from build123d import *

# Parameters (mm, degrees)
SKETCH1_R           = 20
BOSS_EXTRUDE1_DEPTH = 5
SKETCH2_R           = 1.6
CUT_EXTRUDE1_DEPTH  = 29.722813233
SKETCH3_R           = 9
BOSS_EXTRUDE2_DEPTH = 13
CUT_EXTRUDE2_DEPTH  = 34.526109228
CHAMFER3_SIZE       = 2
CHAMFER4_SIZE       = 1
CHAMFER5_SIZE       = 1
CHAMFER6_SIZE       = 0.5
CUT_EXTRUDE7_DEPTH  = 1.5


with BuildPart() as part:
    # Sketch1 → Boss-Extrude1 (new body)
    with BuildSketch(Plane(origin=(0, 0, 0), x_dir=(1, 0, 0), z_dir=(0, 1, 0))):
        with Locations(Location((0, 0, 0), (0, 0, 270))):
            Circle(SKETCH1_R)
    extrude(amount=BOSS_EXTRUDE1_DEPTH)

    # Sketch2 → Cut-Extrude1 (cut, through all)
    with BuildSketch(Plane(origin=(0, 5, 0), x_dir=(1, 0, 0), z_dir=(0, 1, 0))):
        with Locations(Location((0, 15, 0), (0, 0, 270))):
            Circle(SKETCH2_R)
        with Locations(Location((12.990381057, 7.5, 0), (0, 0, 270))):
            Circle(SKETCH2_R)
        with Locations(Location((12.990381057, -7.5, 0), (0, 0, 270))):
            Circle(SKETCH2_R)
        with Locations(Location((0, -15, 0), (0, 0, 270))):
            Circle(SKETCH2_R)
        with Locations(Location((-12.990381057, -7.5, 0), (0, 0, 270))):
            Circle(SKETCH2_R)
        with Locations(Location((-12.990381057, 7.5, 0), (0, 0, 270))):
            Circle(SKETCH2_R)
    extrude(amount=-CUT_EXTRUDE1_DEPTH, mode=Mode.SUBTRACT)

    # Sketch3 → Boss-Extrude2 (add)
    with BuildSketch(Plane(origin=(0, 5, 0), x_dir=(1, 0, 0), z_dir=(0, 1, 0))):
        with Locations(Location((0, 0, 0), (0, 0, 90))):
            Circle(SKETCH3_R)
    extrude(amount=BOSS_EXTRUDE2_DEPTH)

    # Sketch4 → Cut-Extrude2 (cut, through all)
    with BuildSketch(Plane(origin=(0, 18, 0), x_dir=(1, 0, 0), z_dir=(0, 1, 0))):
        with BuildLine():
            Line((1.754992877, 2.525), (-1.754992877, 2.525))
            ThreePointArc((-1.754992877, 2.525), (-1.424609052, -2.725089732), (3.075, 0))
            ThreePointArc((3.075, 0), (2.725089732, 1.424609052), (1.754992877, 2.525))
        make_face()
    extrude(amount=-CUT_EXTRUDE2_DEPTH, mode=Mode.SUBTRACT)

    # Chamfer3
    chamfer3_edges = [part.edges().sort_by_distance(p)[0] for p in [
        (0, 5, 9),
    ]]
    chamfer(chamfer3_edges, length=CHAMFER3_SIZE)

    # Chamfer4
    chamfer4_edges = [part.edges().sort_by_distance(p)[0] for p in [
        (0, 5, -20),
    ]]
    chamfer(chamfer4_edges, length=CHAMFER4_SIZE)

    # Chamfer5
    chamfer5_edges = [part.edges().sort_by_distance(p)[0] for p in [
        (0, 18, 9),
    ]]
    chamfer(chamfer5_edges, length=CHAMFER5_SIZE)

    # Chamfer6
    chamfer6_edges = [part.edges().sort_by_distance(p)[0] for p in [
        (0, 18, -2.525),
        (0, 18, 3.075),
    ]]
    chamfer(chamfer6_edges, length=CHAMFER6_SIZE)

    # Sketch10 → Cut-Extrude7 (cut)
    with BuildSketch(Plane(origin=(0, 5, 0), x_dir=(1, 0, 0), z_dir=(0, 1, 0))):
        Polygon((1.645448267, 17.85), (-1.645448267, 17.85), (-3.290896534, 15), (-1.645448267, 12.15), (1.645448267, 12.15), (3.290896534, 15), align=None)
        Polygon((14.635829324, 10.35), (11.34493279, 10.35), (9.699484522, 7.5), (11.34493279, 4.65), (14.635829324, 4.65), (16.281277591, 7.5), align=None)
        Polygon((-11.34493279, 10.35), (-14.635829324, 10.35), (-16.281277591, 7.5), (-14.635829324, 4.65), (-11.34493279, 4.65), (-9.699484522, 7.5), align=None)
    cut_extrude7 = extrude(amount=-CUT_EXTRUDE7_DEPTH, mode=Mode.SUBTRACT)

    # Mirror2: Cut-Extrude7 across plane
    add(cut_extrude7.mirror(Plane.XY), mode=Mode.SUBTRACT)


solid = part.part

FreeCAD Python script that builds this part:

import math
import FreeCAD as App
import Part
import Sketcher
Q = App.Units.Quantity


def edges_at(feature, points):
    """Names of the edges that pass closest to the given points."""
    edges = feature.Shape.Edges
    near = lambda p: min(range(len(edges)), key=lambda i: edges[i].distToShape(Part.Vertex(*p))[0])
    return sorted({f"Edge{near(p) + 1}" for p in points})


def add_polygon(sketch, points):
    """Adds a closed chain of lines whose ends are joined by coincident constraints."""
    first, n = sketch.GeometryCount, len(points)
    for a, b in zip(points, points[1:] + points[:1]):
        sketch.addGeometry(Part.LineSegment(App.Vector(*a, 0), App.Vector(*b, 0)), False)
    for i in range(n):
        sketch.addConstraint(Sketcher.Constraint("Coincident", first + i, 2, first + (i + 1) % n, 1))

doc = App.newDocument("Part")
params = doc.addObject("Spreadsheet::Sheet", "Params")
for row, (alias, value) in enumerate([
    ("sketch1_diameter", "40 mm"),
    ("pad1_length", "5 mm"),
    ("sketch2_diameter", "3.2 mm"),
    ("sketch3_diameter", "18 mm"),
    ("pad2_length", "13 mm"),
    ("chamfer_size", "2 mm"),
    ("chamfer2_size", "1 mm"),
    ("chamfer3_size", "1 mm"),
    ("chamfer4_size", "0.5 mm"),
    ("pocket3_length", "1.5 mm"),
], start=1):
    params.set(f"A{row}", alias)
    params.set(f"B{row}", "=" + value)
    params.setAlias(f"B{row}", alias)

body = doc.addObject("PartDesign::Body", "Body")

sketch1 = doc.addObject("Sketcher::SketchObject", "Sketch")
body.addObject(sketch1)
sketch1.AttachmentSupport = (doc.XZ_Plane, [""])
sketch1.MapMode = "FlatFace"
sketch1.addGeometry(Part.Circle(App.Vector(0, 0, 0), App.Vector(0, 0, 1), 20), False)
sketch1.addConstraint([
    Sketcher.Constraint("Coincident", 0, 3, -1, 1),
    Sketcher.Constraint("Diameter", 0, Q("40 mm")),
])
sketch1.setExpression("Constraints[1]", "Params.sketch1_diameter")
pad1 = doc.addObject("PartDesign::Pad", "Pad")
body.addObject(pad1)
pad1.Profile = sketch1
pad1.setExpression("Length", "Params.pad1_length")
pad1.Reversed = True

sketch2 = doc.addObject("Sketcher::SketchObject", "Sketch001")
body.addObject(sketch2)
sketch2.AttachmentSupport = (doc.XZ_Plane, [""])
sketch2.MapMode = "FlatFace"
sketch2.AttachmentOffset = App.Placement(App.Vector(0, 0, -5), App.Rotation())
sketch2.addGeometry([
    Part.Circle(App.Vector(0, -15, 0), App.Vector(0, 0, 1), 1.6),
    Part.Circle(App.Vector(13, -7.5, 0), App.Vector(0, 0, 1), 1.6),
    Part.Circle(App.Vector(13, 7.5, 0), App.Vector(0, 0, 1), 1.6),
    Part.Circle(App.Vector(0, 15, 0), App.Vector(0, 0, 1), 1.6),
    Part.Circle(App.Vector(-13, 7.5, 0), App.Vector(0, 0, 1), 1.6),
    Part.Circle(App.Vector(-13, -7.5, 0), App.Vector(0, 0, 1), 1.6),
], False)
sketch2.addConstraint([
    Sketcher.Constraint("Equal", 0, 1),
    Sketcher.Constraint("Equal", 1, 2),
    Sketcher.Constraint("Equal", 2, 3),
    Sketcher.Constraint("Equal", 3, 4),
    Sketcher.Constraint("Equal", 4, 5),
    Sketcher.Constraint("Symmetric", 0, 3, 3, 3, -1, 1),
    Sketcher.Constraint("Symmetric", 1, 3, 4, 3, -1, 1),
    Sketcher.Constraint("Symmetric", 2, 3, 5, 3, -1, 1),
    Sketcher.Constraint("Symmetric", 2, 3, 4, 3, -2),
    Sketcher.Constraint("PointOnObject", 0, 3, -2),
    Sketcher.Constraint("Diameter", 0, Q("3.2 mm")),
    Sketcher.Constraint("DistanceY", 0, 3, -1, 1, Q("15 mm")),
    Sketcher.Constraint("DistanceY", 1, 3, 2, 3, Q("15 mm")),
    Sketcher.Constraint("DistanceX", -1, 1, 1, 3, Q("12.990381 mm")),
])
sketch2.setExpression("Constraints[10]", "Params.sketch2_diameter")
pocket1 = doc.addObject("PartDesign::Pocket", "Pocket")
body.addObject(pocket1)
pocket1.Profile = sketch2
pocket1.Type = "ThroughAll"
pocket1.Reversed = True

sketch3 = doc.addObject("Sketcher::SketchObject", "Sketch002")
body.addObject(sketch3)
sketch3.AttachmentSupport = (doc.XZ_Plane, [""])
sketch3.MapMode = "FlatFace"
sketch3.AttachmentOffset = App.Placement(App.Vector(0, 0, -5), App.Rotation())
sketch3.addGeometry(Part.Circle(App.Vector(0, 0, 0), App.Vector(0, 0, 1), 9), False)
sketch3.addConstraint([
    Sketcher.Constraint("Coincident", 0, 3, -1, 1),
    Sketcher.Constraint("Diameter", 0, Q("18 mm")),
])
sketch3.setExpression("Constraints[1]", "Params.sketch3_diameter")
pad2 = doc.addObject("PartDesign::Pad", "Pad001")
body.addObject(pad2)
pad2.Profile = sketch3
pad2.setExpression("Length", "Params.pad2_length")
pad2.Reversed = True

sketch4 = doc.addObject("Sketcher::SketchObject", "Sketch003")
body.addObject(sketch4)
sketch4.AttachmentSupport = (doc.XZ_Plane, [""])
sketch4.MapMode = "FlatFace"
sketch4.AttachmentOffset = App.Placement(App.Vector(0, 0, -18), App.Rotation())
sketch4.addGeometry([
    Part.LineSegment(App.Vector(1.8, -2.5, 0), App.Vector(-1.8, -2.5, 0)),
    Part.ArcOfCircle(Part.Circle(App.Vector(0, 0, 0), App.Vector(0, 0, 1), 3.1), math.radians(0), math.radians(235)),
    Part.ArcOfCircle(Part.Circle(App.Vector(0, 0, 0), App.Vector(0, 0, 1), 3.1), math.radians(-55), math.radians(0)),
], False)
sketch4.addConstraint([
    Sketcher.Constraint("Coincident", 0, 2, 1, 2),
    Sketcher.Constraint("Tangent", 1, 1, 2, 2),
    Sketcher.Constraint("Coincident", 2, 1, 0, 1),
    Sketcher.Constraint("Horizontal", 0),
    Sketcher.Constraint("Coincident", 1, 3, -1, 1),
    Sketcher.Constraint("Equal", 1, 2),
    Sketcher.Constraint("PointOnObject", 1, 1, -1),
    Sketcher.Constraint("Radius", 1, Q("3.075 mm")),
    Sketcher.Constraint("DistanceY", 0, 2, -1, 1, Q("2.525 mm")),
])
pocket2 = doc.addObject("PartDesign::Pocket", "Pocket001")
body.addObject(pocket2)
pocket2.Profile = sketch4
pocket2.Type = "ThroughAll"
pocket2.Reversed = True
doc.recompute()

chamfer = doc.addObject("PartDesign::Chamfer", "Chamfer")
body.addObject(chamfer)
chamfer.Base = (pocket2, edges_at(pocket2, [(0, 5, 9)]))
chamfer.setExpression("Size", "Params.chamfer_size")
doc.recompute()

chamfer2 = doc.addObject("PartDesign::Chamfer", "Chamfer001")
body.addObject(chamfer2)
chamfer2.Base = (chamfer, edges_at(chamfer, [(0, 5, -20)]))
chamfer2.setExpression("Size", "Params.chamfer2_size")
doc.recompute()

chamfer3 = doc.addObject("PartDesign::Chamfer", "Chamfer002")
body.addObject(chamfer3)
chamfer3.Base = (chamfer2, edges_at(chamfer2, [(0, 18, 9)]))
chamfer3.setExpression("Size", "Params.chamfer3_size")
doc.recompute()

chamfer4 = doc.addObject("PartDesign::Chamfer", "Chamfer003")
body.addObject(chamfer4)
chamfer4.Base = (chamfer3, edges_at(chamfer3, [(0, 18, -2.525), (-1.425, 18, 2.725)]))
chamfer4.setExpression("Size", "Params.chamfer4_size")

sketch5 = doc.addObject("Sketcher::SketchObject", "Sketch004")
body.addObject(sketch5)
sketch5.AttachmentSupport = (doc.XZ_Plane, [""])
sketch5.MapMode = "FlatFace"
sketch5.AttachmentOffset = App.Placement(App.Vector(0, 0, -5), App.Rotation())
add_polygon(sketch5, [(1.6, -17.9), (-1.6, -17.9), (-3.3, -15), (-1.6, -12.2), (1.6, -12.2), (3.3, -15)])
add_polygon(sketch5, [(14.6, -10.3), (11.3, -10.3), (9.7, -7.5), (11.3, -4.7), (14.6, -4.7), (16.3, -7.5)])
add_polygon(sketch5, [(-11.3, -10.3), (-14.6, -10.3), (-16.3, -7.5), (-14.6, -4.7), (-11.3, -4.7), (-9.7, -7.5)])
sketch5.addConstraint([
    Sketcher.Constraint("Horizontal", 0),
    Sketcher.Constraint("Horizontal", 3),
    Sketcher.Constraint("Horizontal", 6),
    Sketcher.Constraint("Horizontal", 9),
    Sketcher.Constraint("Horizontal", 12),
    Sketcher.Constraint("Horizontal", 15),
    Sketcher.Constraint("Symmetric", 1, 2, 4, 2, -2),
    Sketcher.Constraint("Symmetric", 11, 2, 12, 2, -2),
    Sketcher.Constraint("Symmetric", 10, 2, 13, 2, -2),
    Sketcher.Constraint("Symmetric", 9, 2, 14, 2, -2),
    Sketcher.Constraint("Symmetric", 7, 2, 16, 2, -2),
    Sketcher.Constraint("Parallel", 1, 4),
    Sketcher.Constraint("Parallel", 2, 5),
    Sketcher.Constraint("Parallel", 4, 7),
    Sketcher.Constraint("Parallel", 5, 8),
    Sketcher.Constraint("Parallel", 7, 10),
    Sketcher.Constraint("Parallel", 8, 11),
    Sketcher.Constraint("Parallel", 10, 13),
    Sketcher.Constraint("Parallel", 13, 16),
    Sketcher.Constraint("Parallel", 14, 17),
    Sketcher.Constraint("Horizontal", 7, 2, 10, 2),
    Sketcher.Constraint("Vertical", 0, 2, 2, 2),
    Sketcher.Constraint("Vertical", 6, 2, 8, 2),
    Sketcher.Constraint("Equal", 3, 6),
    Sketcher.Constraint("Equal", 5, 7),
    Sketcher.Constraint("Angle", 1, Q("120 deg")),
    Sketcher.Constraint("DistanceY", 1, 2, -1, 1, Q("15 mm")),
    Sketcher.Constraint("DistanceY", 7, 2, -1, 1, Q("7.5 mm")),
    Sketcher.Constraint("DistanceY", 0, 2, 2, 2, Q("5.7 mm")),
    Sketcher.Constraint("DistanceX", 0, 2, 0, 1, Q("3.290897 mm")),
    Sketcher.Constraint("DistanceX", -1, 1, 9, 2, Q("14.635829 mm")),
])
pocket3 = doc.addObject("PartDesign::Pocket", "Pocket002")
body.addObject(pocket3)
pocket3.Profile = sketch5
pocket3.setExpression("Length", "Params.pocket3_length")
pocket3.Reversed = True
doc.recompute()

mirrored = doc.addObject("PartDesign::Mirrored", "Mirrored")
body.addObject(mirrored)
mirrored.Originals = [pocket3]
mirrored.MirrorPlane = (doc.XY_Plane, [""])
body.Tip = mirrored

doc.recompute()
